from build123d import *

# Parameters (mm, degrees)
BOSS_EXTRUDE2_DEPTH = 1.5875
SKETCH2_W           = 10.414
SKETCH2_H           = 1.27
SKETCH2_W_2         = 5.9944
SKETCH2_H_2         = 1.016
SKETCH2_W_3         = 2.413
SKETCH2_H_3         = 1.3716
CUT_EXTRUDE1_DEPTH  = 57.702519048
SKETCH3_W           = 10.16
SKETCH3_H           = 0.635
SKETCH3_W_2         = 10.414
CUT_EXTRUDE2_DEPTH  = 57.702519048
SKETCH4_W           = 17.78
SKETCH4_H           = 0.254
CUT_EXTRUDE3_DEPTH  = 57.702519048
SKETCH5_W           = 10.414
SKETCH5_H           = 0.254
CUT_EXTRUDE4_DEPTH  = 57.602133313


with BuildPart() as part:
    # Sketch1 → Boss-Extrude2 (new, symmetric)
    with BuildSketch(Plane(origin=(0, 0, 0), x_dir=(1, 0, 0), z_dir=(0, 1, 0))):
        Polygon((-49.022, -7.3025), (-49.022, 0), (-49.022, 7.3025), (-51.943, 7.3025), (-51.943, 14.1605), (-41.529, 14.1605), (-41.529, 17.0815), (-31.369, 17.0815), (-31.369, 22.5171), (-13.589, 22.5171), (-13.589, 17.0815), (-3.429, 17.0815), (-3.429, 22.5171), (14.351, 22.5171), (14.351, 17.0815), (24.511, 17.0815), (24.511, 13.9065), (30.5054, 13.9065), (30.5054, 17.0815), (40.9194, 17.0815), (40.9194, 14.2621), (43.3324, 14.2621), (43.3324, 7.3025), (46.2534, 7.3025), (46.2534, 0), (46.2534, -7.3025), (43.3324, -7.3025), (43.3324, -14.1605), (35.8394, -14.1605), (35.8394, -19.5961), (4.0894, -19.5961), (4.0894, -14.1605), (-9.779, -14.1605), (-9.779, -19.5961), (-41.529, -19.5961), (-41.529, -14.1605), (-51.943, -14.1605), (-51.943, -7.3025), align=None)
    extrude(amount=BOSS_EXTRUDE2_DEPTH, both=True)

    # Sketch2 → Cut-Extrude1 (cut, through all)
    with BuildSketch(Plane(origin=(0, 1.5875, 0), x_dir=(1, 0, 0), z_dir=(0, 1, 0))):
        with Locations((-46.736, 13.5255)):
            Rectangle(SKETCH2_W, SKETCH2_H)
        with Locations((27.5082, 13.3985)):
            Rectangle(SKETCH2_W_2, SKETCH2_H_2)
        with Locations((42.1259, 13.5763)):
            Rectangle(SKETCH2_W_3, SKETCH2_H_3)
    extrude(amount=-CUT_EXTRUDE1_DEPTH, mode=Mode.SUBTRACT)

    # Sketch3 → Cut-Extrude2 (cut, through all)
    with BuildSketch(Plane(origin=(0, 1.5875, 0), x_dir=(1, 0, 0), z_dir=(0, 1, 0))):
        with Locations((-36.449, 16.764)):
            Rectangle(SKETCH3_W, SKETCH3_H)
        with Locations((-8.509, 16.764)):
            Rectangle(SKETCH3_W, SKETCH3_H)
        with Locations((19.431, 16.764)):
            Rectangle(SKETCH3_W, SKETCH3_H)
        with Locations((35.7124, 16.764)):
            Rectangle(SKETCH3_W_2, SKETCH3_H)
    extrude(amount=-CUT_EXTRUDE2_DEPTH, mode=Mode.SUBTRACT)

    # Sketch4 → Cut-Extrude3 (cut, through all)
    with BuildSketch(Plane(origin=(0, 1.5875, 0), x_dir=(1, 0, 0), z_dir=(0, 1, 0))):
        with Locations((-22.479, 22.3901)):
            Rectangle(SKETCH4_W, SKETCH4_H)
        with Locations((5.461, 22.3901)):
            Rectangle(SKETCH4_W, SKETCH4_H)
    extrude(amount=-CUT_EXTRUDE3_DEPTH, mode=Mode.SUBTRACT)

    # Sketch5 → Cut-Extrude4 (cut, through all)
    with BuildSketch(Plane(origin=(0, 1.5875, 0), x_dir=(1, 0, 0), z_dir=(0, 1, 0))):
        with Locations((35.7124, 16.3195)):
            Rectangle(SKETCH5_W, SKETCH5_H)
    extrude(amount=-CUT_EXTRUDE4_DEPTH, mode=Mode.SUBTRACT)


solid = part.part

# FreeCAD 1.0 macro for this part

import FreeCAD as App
import Part
import Sketcher

V = App.Vector
Q = App.Units.Quantity

doc = App.newDocument("Part")
body = doc.addObject("PartDesign::Body", "Body")

sketch1 = body.newObject("Sketcher::SketchObject", "Sketch")
sketch1.AttachmentSupport = (doc.getObject("XZ_Plane"), [""])
sketch1.MapMode = "FlatFace"
sketch1.addGeometry([
    Part.LineSegment(V(-49, -7.3, 0), V(-49, 7.3, 0)),
    Part.LineSegment(V(-49, 7.3, 0), V(-51.9, 7.3, 0)),
    Part.LineSegment(V(-51.9, 7.3, 0), V(-51.9, 14.2, 0)),
    Part.LineSegment(V(-51.9, 14.2, 0), V(-41.5, 14.2, 0)),
    Part.LineSegment(V(-41.5, 14.2, 0), V(-41.5, 19.6, 0)),
    Part.LineSegment(V(-41.5, 19.6, 0), V(-9.8, 19.6, 0)),
    Part.LineSegment(V(-9.8, 19.6, 0), V(-9.8, 14.2, 0)),
    Part.LineSegment(V(-9.8, 14.2, 0), V(4.1, 14.2, 0)),
    Part.LineSegment(V(4.1, 14.2, 0), V(4.1, 19.6, 0)),
    Part.LineSegment(V(4.1, 19.6, 0), V(35.8, 19.6, 0)),
    Part.LineSegment(V(35.8, 19.6, 0), V(35.8, 14.2, 0)),
    Part.LineSegment(V(35.8, 14.2, 0), V(43.3, 14.2, 0)),
    Part.LineSegment(V(43.3, 14.2, 0), V(43.3, 7.3, 0)),
    Part.LineSegment(V(43.3, 7.3, 0), V(46.3, 7.3, 0)),
    Part.LineSegment(V(46.3, 7.3, 0), V(46.3, -7.3, 0)),
    Part.LineSegment(V(46.3, -7.3, 0), V(43.3, -7.3, 0)),
    Part.LineSegment(V(43.3, -7.3, 0), V(43.3, -14.3, 0)),
    Part.LineSegment(V(43.3, -14.3, 0), V(40.9, -14.3, 0)),
    Part.LineSegment(V(40.9, -14.3, 0), V(40.9, -17.1, 0)),
    Part.LineSegment(V(40.9, -17.1, 0), V(30.5, -17.1, 0)),
    Part.LineSegment(V(30.5, -17.1, 0), V(30.5, -13.9, 0)),
    Part.LineSegment(V(30.5, -13.9, 0), V(24.5, -13.9, 0)),
    Part.LineSegment(V(24.5, -13.9, 0), V(24.5, -17.1, 0)),
    Part.LineSegment(V(24.5, -17.1, 0), V(14.4, -17.1, 0)),
    Part.LineSegment(V(14.4, -17.1, 0), V(14.4, -22.5, 0)),
    Part.LineSegment(V(14.4, -22.5, 0), V(-3.4, -22.5, 0)),
    Part.LineSegment(V(-3.4, -22.5, 0), V(-3.4, -17.1, 0)),
    Part.LineSegment(V(-3.4, -17.1, 0), V(-13.6, -17.1, 0)),
    Part.LineSegment(V(-13.6, -17.1, 0), V(-13.6, -22.5, 0)),
    Part.LineSegment(V(-13.6, -22.5, 0), V(-31.4, -22.5, 0)),
    Part.LineSegment(V(-31.4, -22.5, 0), V(-31.4, -17.1, 0)),
    Part.LineSegment(V(-31.4, -17.1, 0), V(-41.5, -17.1, 0)),
    Part.LineSegment(V(-41.5, -17.1, 0), V(-41.5, -14.2, 0)),
    Part.LineSegment(V(-41.5, -14.2, 0), V(-51.9, -14.2, 0)),
    Part.LineSegment(V(-51.9, -14.2, 0), V(-51.9, -7.3, 0)),
    Part.LineSegment(V(-51.9, -7.3, 0), V(-49, -7.3, 0)),
], False)
sketch1.addConstraint([
    Sketcher.Constraint("Coincident", 0, 2, 1, 1),
    Sketcher.Constraint("Coincident", 1, 2, 2, 1),
    Sketcher.Constraint("Coincident", 2, 2, 3, 1),
    Sketcher.Constraint("Coincident", 3, 2, 4, 1),
    Sketcher.Constraint("Coincident", 4, 2, 5, 1),
    Sketcher.Constraint("Coincident", 5, 2, 6, 1),
    Sketcher.Constraint("Coincident", 6, 2, 7, 1),
    Sketcher.Constraint("Coincident", 7, 2, 8, 1),
    Sketcher.Constraint("Coincident", 8, 2, 9, 1),
    Sketcher.Constraint("Coincident", 9, 2, 10, 1),
    Sketcher.Constraint("Coincident", 10, 2, 11, 1),
    Sketcher.Constraint("Coincident", 11, 2, 12, 1),
    Sketcher.Constraint("Coincident", 12, 2, 13, 1),
    Sketcher.Constraint("Coincident", 13, 2, 14, 1),
    Sketcher.Constraint("Coincident", 14, 2, 15, 1),
    Sketcher.Constraint("Coincident", 15, 2, 16, 1),
    Sketcher.Constraint("Coincident", 16, 2, 17, 1),
    Sketcher.Constraint("Coincident", 17, 2, 18, 1),
    Sketcher.Constraint("Coincident", 18, 2, 19, 1),
    Sketcher.Constraint("Coincident", 19, 2, 20, 1),
    Sketcher.Constraint("Coincident", 20, 2, 21, 1),
    Sketcher.Constraint("Coincident", 21, 2, 22, 1),
    Sketcher.Constraint("Coincident", 22, 2, 23, 1),
    Sketcher.Constraint("Coincident", 23, 2, 24, 1),
    Sketcher.Constraint("Coincident", 24, 2, 25, 1),
    Sketcher.Constraint("Coincident", 25, 2, 26, 1),
    Sketcher.Constraint("Coincident", 26, 2, 27, 1),
    Sketcher.Constraint("Coincident", 27, 2, 28, 1),
    Sketcher.Constraint("Coincident", 28, 2, 29, 1),
    Sketcher.Constraint("Coincident", 29, 2, 30, 1),
    Sketcher.Constraint("Coincident", 30, 2, 31, 1),
    Sketcher.Constraint("Coincident", 31, 2, 32, 1),
    Sketcher.Constraint("Coincident", 32, 2, 33, 1),
    Sketcher.Constraint("Coincident", 33, 2, 34, 1),
    Sketcher.Constraint("Coincident", 34, 2, 35, 1),
    Sketcher.Constraint("Coincident", 35, 2, 0, 1),
    Sketcher.Constraint("Vertical", 0),
    Sketcher.Constraint("Horizontal", 1),
    Sketcher.Constraint("Vertical", 2),
    Sketcher.Constraint("Horizontal", 3),
    Sketcher.Constraint("Vertical", 4),
    Sketcher.Constraint("Horizontal", 5),
    Sketcher.Constraint("Vertical", 6),
    Sketcher.Constraint("Horizontal", 7),
    Sketcher.Constraint("Vertical", 8),
    Sketcher.Constraint("Horizontal", 9),
    Sketcher.Constraint("Vertical", 10),
    Sketcher.Constraint("Horizontal", 11),
    Sketcher.Constraint("Vertical", 12),
    Sketcher.Constraint("Horizontal", 13),
    Sketcher.Constraint("Vertical", 14),
    Sketcher.Constraint("Horizontal", 15),
    Sketcher.Constraint("Vertical", 16),
    Sketcher.Constraint("Horizontal", 17),
    Sketcher.Constraint("Vertical", 18),
    Sketcher.Constraint("Horizontal", 19),
    Sketcher.Constraint("Vertical", 20),
    Sketcher.Constraint("Horizontal", 21),
    Sketcher.Constraint("Vertical", 22),
    Sketcher.Constraint("Horizontal", 23),
    Sketcher.Constraint("Vertical", 24),
    Sketcher.Constraint("Horizontal", 25),
    Sketcher.Constraint("Vertical", 26),
    Sketcher.Constraint("Horizontal", 27),
    Sketcher.Constraint("Vertical", 28),
    Sketcher.Constraint("Horizontal", 29),
    Sketcher.Constraint("Vertical", 30),
    Sketcher.Constraint("Horizontal", 31),
    Sketcher.Constraint("Vertical", 32),
    Sketcher.Constraint("Horizontal", 33),
    Sketcher.Constraint("Vertical", 34),
    Sketcher.Constraint("Horizontal", 35),
    Sketcher.Constraint("Symmetric", 12, 2, 15, 2, -1),
    Sketcher.Constraint("Symmetric", 3, 2, 32, 2, -1),
    Sketcher.Constraint("Symmetric", 1, 2, 34, 2, -1),
    Sketcher.Constraint("Horizontal", 3, 2, 6, 2),
    Sketcher.Constraint("Horizontal", 5, 2, 8, 2),
    Sketcher.Constraint("Horizontal", 7, 2, 10, 2),
    Sketcher.Constraint("Horizontal", 1, 2, 12, 2),
    Sketcher.Constraint("Horizontal", 19, 2, 22, 2),
    Sketcher.Constraint("Horizontal", 23, 2, 26, 2),
    Sketcher.Constraint("Horizontal", 25, 2, 28, 2),
    Sketcher.Constraint("Horizontal", 27, 2, 30, 2),
    Sketcher.Constraint("Equal", 5, 9),
    Sketcher.Constraint("Equal", 1, 13),
    Sketcher.Constraint("Equal", 3, 19),
    Sketcher.Constraint("Equal", 23, 27),
    Sketcher.Constraint("Equal", 25, 29),
    Sketcher.Constraint("Equal", 27, 31),
    Sketcher.Constraint("Equal", 10, 24),
    Sketcher.Constraint("Equal", 35, 32),
    Sketcher.Constraint("DistanceX", 23, 2, 23, 1, Q("0.4 in")),
    Sketcher.Constraint("DistanceX", 25, 2, 25, 1, Q("0.7 in")),
    Sketcher.Constraint("DistanceX", 3, 1, 3, 2, Q("0.41 in")),
    Sketcher.Constraint("DistanceX", 5, 1, 5, 2, Q("1.25 in")),
    Sketcher.Constraint("DistanceY", 2, 1, 2, 2, Q("0.27 in")),
    Sketcher.Constraint("DistanceX", 1, 2, 1, 1, Q("0.115 in")),
    Sketcher.Constraint("DistanceX", 7, 1, 7, 2, Q("0.546 in")),
    Sketcher.Constraint("DistanceX", 11, 1, 11, 2, Q("0.295 in")),
    Sketcher.Constraint("DistanceX", 17, 2, 17, 1, Q("0.095 in")),
    Sketcher.Constraint("DistanceY", 0, 1, 0, 2, Q("0.575 in")),
    Sketcher.Constraint("DistanceY", 4, 1, 4, 2, Q("0.214 in")),
    Sketcher.Constraint("DistanceY", 16, 2, 16, 1, Q("0.274 in")),
    Sketcher.Constraint("DistanceY", 20, 1, 20, 2, Q("0.125 in")),
    Sketcher.Constraint("DistanceX", 0, 2, -1, 1, Q("1.93 in")),
])
pad1 = body.newObject("PartDesign::Pad", "Pad")
pad1.Profile = sketch1
pad1.Length = Q("0.125 in")
pad1.Midplane = True

sketch2 = body.newObject("Sketcher::SketchObject", "Sketch001")
sketch2.AttachmentSupport = (doc.getObject("XZ_Plane"), [""])
sketch2.MapMode = "FlatFace"
sketch2.AttachmentOffset = App.Placement(V(0, 0, -0.0625 * 25.4), App.Rotation())
sketch2.addGeometry([
    Part.LineSegment(V(-51.9, -14.2, 0), V(-51.9, -12.9, 0)),
    Part.LineSegment(V(-51.9, -12.9, 0), V(-41.5, -12.9, 0)),
    Part.LineSegment(V(-41.5, -12.9, 0), V(-41.5, -14.2, 0)),
    Part.LineSegment(V(-41.5, -14.2, 0), V(-51.9, -14.2, 0)),
    Part.LineSegment(V(24.5, -13.9, 0), V(24.5, -12.9, 0)),
    Part.LineSegment(V(24.5, -12.9, 0), V(30.5, -12.9, 0)),
    Part.LineSegment(V(30.5, -12.9, 0), V(30.5, -13.9, 0)),
    Part.LineSegment(V(30.5, -13.9, 0), V(24.5, -13.9, 0)),
    Part.LineSegment(V(40.9, -14.3, 0), V(40.9, -12.9, 0)),
    Part.LineSegment(V(40.9, -12.9, 0), V(43.3, -12.9, 0)),
    Part.LineSegment(V(43.3, -12.9, 0), V(43.3, -14.3, 0)),
    Part.LineSegment(V(43.3, -14.3, 0), V(40.9, -14.3, 0)),
], False)
sketch2.addConstraint([
    Sketcher.Constraint("Coincident", 0, 2, 1, 1),
    Sketcher.Constraint("Coincident", 1, 2, 2, 1),
    Sketcher.Constraint("Coincident", 2, 2, 3, 1),
    Sketcher.Constraint("Coincident", 3, 2, 0, 1),
    Sketcher.Constraint("Coincident", 4, 2, 5, 1),
    Sketcher.Constraint("Coincident", 5, 2, 6, 1),
    Sketcher.Constraint("Coincident", 6, 2, 7, 1),
    Sketcher.Constraint("Coincident", 7, 2, 4, 1),
    Sketcher.Constraint("Coincident", 8, 2, 9, 1),
    Sketcher.Constraint("Coincident", 9, 2, 10, 1),
    Sketcher.Constraint("Coincident", 10, 2, 11, 1),
    Sketcher.Constraint("Coincident", 11, 2, 8, 1),
    Sketcher.Constraint("Vertical", 0),
    Sketcher.Constraint("Horizontal", 1),
    Sketcher.Constraint("Vertical", 2),
    Sketcher.Constraint("Horizontal", 3),
    Sketcher.Constraint("Vertical", 4),
    Sketcher.Constraint("Horizontal", 5),
    Sketcher.Constraint("Vertical", 6),
    Sketcher.Constraint("Horizontal", 7),
    Sketcher.Constraint("Vertical", 8),
    Sketcher.Constraint("Horizontal", 9),
    Sketcher.Constraint("Vertical", 10),
    Sketcher.Constraint("Horizontal", 11),
    Sketcher.Constraint("Horizontal", 1, 2, 4, 2),
    Sketcher.Constraint("Horizontal", 5, 2, 8, 2),
    Sketcher.Constraint("DistanceX", 1, 1, 1, 2, Q("0.41 in")),
    Sketcher.Constraint("DistanceY", 0, 1, 0, 2, Q("0.05 in")),
    Sketcher.Constraint("DistanceY", 4, 1, 4, 2, Q("0.04 in")),
    Sketcher.Constraint("DistanceX", 1, 2, 4, 2, Q("2.6 in")),
    Sketcher.Constraint("DistanceX", 5, 1, 5, 2, Q("0.236 in")),
    Sketcher.Constraint("DistanceX", 9, 1, 9, 2, Q("0.095 in")),
    Sketcher.Constraint("DistanceY", 8, 1, 8, 2, Q("0.054 in")),
    Sketcher.Constraint("DistanceX", 5, 2, 8, 2, Q("0.41 in")),
    Sketcher.Constraint("DistanceX", 0, 2, -1, 1, Q("2.045 in")),
    Sketcher.Constraint("DistanceY", 0, 2, -1, 1, Q("0.5075 in")),
])
pocket1 = body.newObject("PartDesign::Pocket", "Pocket")
pocket1.Profile = sketch2
pocket1.Type = "ThroughAll"
pocket1.Reversed = True

sketch3 = body.newObject("Sketcher::SketchObject", "Sketch002")
sketch3.AttachmentSupport = (doc.getObject("XZ_Plane"), [""])
sketch3.MapMode = "FlatFace"
sketch3.AttachmentOffset = App.Placement(V(0, 0, -0.0625 * 25.4), App.Rotation())
sketch3.addGeometry([
    Part.LineSegment(V(-41.5, -17.1, 0), V(-41.5, -16.4, 0)),
    Part.LineSegment(V(-41.5, -16.4, 0), V(-31.4, -16.4, 0)),
    Part.LineSegment(V(-31.4, -16.4, 0), V(-31.4, -17.1, 0)),
    Part.LineSegment(V(-31.4, -17.1, 0), V(-41.5, -17.1, 0)),
    Part.LineSegment(V(-13.6, -17.1, 0), V(-13.6, -16.4, 0)),
    Part.LineSegment(V(-13.6, -16.4, 0), V(-3.4, -16.4, 0)),
    Part.LineSegment(V(-3.4, -16.4, 0), V(-3.4, -17.1, 0)),
    Part.LineSegment(V(-3.4, -17.1, 0), V(-13.6, -17.1, 0)),
    Part.LineSegment(V(14.4, -17.1, 0), V(14.4, -16.4, 0)),
    Part.LineSegment(V(14.4, -16.4, 0), V(24.5, -16.4, 0)),
    Part.LineSegment(V(24.5, -16.4, 0), V(24.5, -17.1, 0)),
    Part.LineSegment(V(24.5, -17.1, 0), V(14.4, -17.1, 0)),
    Part.LineSegment(V(30.5, -17.1, 0), V(30.5, -16.4, 0)),
    Part.LineSegment(V(30.5, -16.4, 0), V(40.9, -16.4, 0)),
    Part.LineSegment(V(40.9, -16.4, 0), V(40.9, -17.1, 0)),
    Part.LineSegment(V(40.9, -17.1, 0), V(30.5, -17.1, 0)),
], False)
sketch3.addConstraint([
    Sketcher.Constraint("Coincident", 0, 2, 1, 1),
    Sketcher.Constraint("Coincident", 1, 2, 2, 1),
    Sketcher.Constraint("Coincident", 2, 2, 3, 1),
    Sketcher.Constraint("Coincident", 3, 2, 0, 1),
    Sketcher.Constraint("Coincident", 4, 2, 5, 1),
    Sketcher.Constraint("Coincident", 5, 2, 6, 1),
    Sketcher.Constraint("Coincident", 6, 2, 7, 1),
    Sketcher.Constraint("Coincident", 7, 2, 4, 1),
    Sketcher.Constraint("Coincident", 8, 2, 9, 1),
    Sketcher.Constraint("Coincident", 9, 2, 10, 1),
    Sketcher.Constraint("Coincident", 10, 2, 11, 1),
    Sketcher.Constraint("Coincident", 11, 2, 8, 1),
    Sketcher.Constraint("Coincident", 12, 2, 13, 1),
    Sketcher.Constraint("Coincident", 13, 2, 14, 1),
    Sketcher.Constraint("Coincident", 14, 2, 15, 1),
    Sketcher.Constraint("Coincident", 15, 2, 12, 1),
    Sketcher.Constraint("Vertical", 0),
    Sketcher.Constraint("Horizontal", 1),
    Sketcher.Constraint("Vertical", 2),
    Sketcher.Constraint("Horizontal", 3),
    Sketcher.Constraint("Vertical", 4),
    Sketcher.Constraint("Horizontal", 5),
    Sketcher.Constraint("Vertical", 6),
    Sketcher.Constraint("Horizontal", 7),
    Sketcher.Constraint("Vertical", 8),
    Sketcher.Constraint("Horizontal", 9),
    Sketcher.Constraint("Vertical", 10),
    Sketcher.Constraint("Horizontal", 11),
    Sketcher.Constraint("Vertical", 12),
    Sketcher.Constraint("Horizontal", 13),
    Sketcher.Constraint("Vertical", 14),
    Sketcher.Constraint("Horizontal", 15),
    Sketcher.Constraint("Horizontal", 1, 2, 4, 2),
    Sketcher.Constraint("Horizontal", 3, 2, 6, 2),
    Sketcher.Constraint("Horizontal", 5, 2, 8, 2),
    Sketcher.Constraint("Horizontal", 7, 2, 10, 2),
    Sketcher.Constraint("Horizontal", 9, 2, 12, 2),
    Sketcher.Constraint("Horizontal", 11, 2, 14, 2),
    Sketcher.Constraint("Equal", 3, 5),
    Sketcher.Constraint("Equal", 7, 9),
    Sketcher.Constraint("DistanceX", 1, 1, 1, 2, Q("0.4 in")),
    Sketcher.Constraint("DistanceX", 13, 1, 13, 2, Q("0.41 in")),
    Sketcher.Constraint("DistanceX", 1, 2, 4, 2, Q("0.7 in")),
    Sketcher.Constraint("DistanceX", 5, 2, 8, 2, Q("0.7 in")),
    Sketcher.Constraint("DistanceY", 0, 1, 0, 2, Q("0.025 in")),
    Sketcher.Constraint("DistanceX", 0, 2, -1, 1, Q("1.635 in")),
    Sketcher.Constraint("DistanceX", -1, 1, 12, 2, Q("1.201 in")),
    Sketcher.Constraint("DistanceY", 0, 2, -1, 1, Q("0.6475 in")),
])
pocket2 = body.newObject("PartDesign::Pocket", "Pocket001")
pocket2.Profile = sketch3
pocket2.Type = "ThroughAll"
pocket2.Reversed = True

sketch4 = body.newObject("Sketcher::SketchObject", "Sketch003")
sketch4.AttachmentSupport = (doc.getObject("XZ_Plane"), [""])
sketch4.MapMode = "FlatFace"
sketch4.AttachmentOffset = App.Placement(V(0, 0, -0.0625 * 25.4), App.Rotation())
sketch4.addGeometry([
    Part.LineSegment(V(-31.37, -22.52, 0), V(-31.37, -22.26, 0)),
    Part.LineSegment(V(-31.37, -22.26, 0), V(-13.59, -22.26, 0)),
    Part.LineSegment(V(-13.59, -22.26, 0), V(-13.59, -22.52, 0)),
    Part.LineSegment(V(-13.59, -22.52, 0), V(-31.37, -22.52, 0)),
    Part.LineSegment(V(-3.43, -22.52, 0), V(-3.43, -22.26, 0)),
    Part.LineSegment(V(-3.43, -22.26, 0), V(14.35, -22.26, 0)),
    Part.LineSegment(V(14.35, -22.26, 0), V(14.35, -22.52, 0)),
    Part.LineSegment(V(14.35, -22.52, 0), V(-3.43, -22.52, 0)),
], False)
sketch4.addConstraint([
    Sketcher.Constraint("Coincident", 0, 2, 1, 1),
    Sketcher.Constraint("Coincident", 1, 2, 2, 1),
    Sketcher.Constraint("Coincident", 2, 2, 3, 1),
    Sketcher.Constraint("Coincident", 3, 2, 0, 1),
    Sketcher.Constraint("Coincident", 4, 2, 5, 1),
    Sketcher.Constraint("Coincident", 5, 2, 6, 1),
    Sketcher.Constraint("Coincident", 6, 2, 7, 1),
    Sketcher.Constraint("Coincident", 7, 2, 4, 1),
    Sketcher.Constraint("Vertical", 0),
    Sketcher.Constraint("Horizontal", 1),
    Sketcher.Constraint("Vertical", 2),
    Sketcher.Constraint("Horizontal", 3),
    Sketcher.Constraint("Vertical", 4),
    Sketcher.Constraint("Horizontal", 5),
    Sketcher.Constraint("Vertical", 6),
    Sketcher.Constraint("Horizontal", 7),
    Sketcher.Constraint("Horizontal", 1, 2, 4, 2),
    Sketcher.Constraint("Horizontal", 3, 2, 6, 2),
    Sketcher.Constraint("Equal", 3, 5),
    Sketcher.Constraint("DistanceX", 1, 1, 1, 2, Q("0.7 in")),
    Sketcher.Constraint("DistanceY", 0, 1, 0, 2, Q("0.01 in")),
    Sketcher.Constraint("DistanceX", 1, 2, 4, 2, Q("0.4 in")),
    Sketcher.Constraint("DistanceX", 0, 2, -1, 1, Q("1.235 in")),
    Sketcher.Constraint("DistanceY", 0, 2, -1, 1, Q("0.8765 in")),
])
pocket3 = body.newObject("PartDesign::Pocket", "Pocket002")
pocket3.Profile = sketch4
pocket3.Type = "ThroughAll"
pocket3.Reversed = True

sketch5 = body.newObject("Sketcher::SketchObject", "Sketch004")
sketch5.AttachmentSupport = (doc.getObject("XZ_Plane"), [""])
sketch5.MapMode = "FlatFace"
sketch5.AttachmentOffset = App.Placement(V(0, 0, -0.0625 * 25.4), App.Rotation())
sketch5.addGeometry([
    Part.LineSegment(V(30.51, -16.45, 0), V(30.51, -16.19, 0)),
    Part.LineSegment(V(30.51, -16.19, 0), V(40.92, -16.19, 0)),
    Part.LineSegment(V(40.92, -16.19, 0), V(40.92, -16.45, 0)),
    Part.LineSegment(V(40.92, -16.45, 0), V(30.51, -16.45, 0)),
], False)
sketch5.addConstraint([
    Sketcher.Constraint("Coincident", 0, 2, 1, 1),
    Sketcher.Constraint("Coincident", 1, 2, 2, 1),
    Sketcher.Constraint("Coincident", 2, 2, 3, 1),
    Sketcher.Constraint("Coincident", 3, 2, 0, 1),
    Sketcher.Constraint("Vertical", 0),
    Sketcher.Constraint("Horizontal", 1),
    Sketcher.Constraint("Vertical", 2),
    Sketcher.Constraint("Horizontal", 3),
    Sketcher.Constraint("DistanceX", 1, 1, 1, 2, Q("0.41 in")),
    Sketcher.Constraint("DistanceY", 0, 1, 0, 2, Q("0.01 in")),
    Sketcher.Constraint("DistanceX", -1, 1, 0, 2, Q("1.201 in")),
    Sketcher.Constraint("DistanceY", 0, 2, -1, 1, Q("0.6375 in")),
])
pocket4 = body.newObject("PartDesign::Pocket", "Pocket003")
pocket4.Profile = sketch5
pocket4.Type = "ThroughAll"
pocket4.Reversed = True

doc.recompute()
